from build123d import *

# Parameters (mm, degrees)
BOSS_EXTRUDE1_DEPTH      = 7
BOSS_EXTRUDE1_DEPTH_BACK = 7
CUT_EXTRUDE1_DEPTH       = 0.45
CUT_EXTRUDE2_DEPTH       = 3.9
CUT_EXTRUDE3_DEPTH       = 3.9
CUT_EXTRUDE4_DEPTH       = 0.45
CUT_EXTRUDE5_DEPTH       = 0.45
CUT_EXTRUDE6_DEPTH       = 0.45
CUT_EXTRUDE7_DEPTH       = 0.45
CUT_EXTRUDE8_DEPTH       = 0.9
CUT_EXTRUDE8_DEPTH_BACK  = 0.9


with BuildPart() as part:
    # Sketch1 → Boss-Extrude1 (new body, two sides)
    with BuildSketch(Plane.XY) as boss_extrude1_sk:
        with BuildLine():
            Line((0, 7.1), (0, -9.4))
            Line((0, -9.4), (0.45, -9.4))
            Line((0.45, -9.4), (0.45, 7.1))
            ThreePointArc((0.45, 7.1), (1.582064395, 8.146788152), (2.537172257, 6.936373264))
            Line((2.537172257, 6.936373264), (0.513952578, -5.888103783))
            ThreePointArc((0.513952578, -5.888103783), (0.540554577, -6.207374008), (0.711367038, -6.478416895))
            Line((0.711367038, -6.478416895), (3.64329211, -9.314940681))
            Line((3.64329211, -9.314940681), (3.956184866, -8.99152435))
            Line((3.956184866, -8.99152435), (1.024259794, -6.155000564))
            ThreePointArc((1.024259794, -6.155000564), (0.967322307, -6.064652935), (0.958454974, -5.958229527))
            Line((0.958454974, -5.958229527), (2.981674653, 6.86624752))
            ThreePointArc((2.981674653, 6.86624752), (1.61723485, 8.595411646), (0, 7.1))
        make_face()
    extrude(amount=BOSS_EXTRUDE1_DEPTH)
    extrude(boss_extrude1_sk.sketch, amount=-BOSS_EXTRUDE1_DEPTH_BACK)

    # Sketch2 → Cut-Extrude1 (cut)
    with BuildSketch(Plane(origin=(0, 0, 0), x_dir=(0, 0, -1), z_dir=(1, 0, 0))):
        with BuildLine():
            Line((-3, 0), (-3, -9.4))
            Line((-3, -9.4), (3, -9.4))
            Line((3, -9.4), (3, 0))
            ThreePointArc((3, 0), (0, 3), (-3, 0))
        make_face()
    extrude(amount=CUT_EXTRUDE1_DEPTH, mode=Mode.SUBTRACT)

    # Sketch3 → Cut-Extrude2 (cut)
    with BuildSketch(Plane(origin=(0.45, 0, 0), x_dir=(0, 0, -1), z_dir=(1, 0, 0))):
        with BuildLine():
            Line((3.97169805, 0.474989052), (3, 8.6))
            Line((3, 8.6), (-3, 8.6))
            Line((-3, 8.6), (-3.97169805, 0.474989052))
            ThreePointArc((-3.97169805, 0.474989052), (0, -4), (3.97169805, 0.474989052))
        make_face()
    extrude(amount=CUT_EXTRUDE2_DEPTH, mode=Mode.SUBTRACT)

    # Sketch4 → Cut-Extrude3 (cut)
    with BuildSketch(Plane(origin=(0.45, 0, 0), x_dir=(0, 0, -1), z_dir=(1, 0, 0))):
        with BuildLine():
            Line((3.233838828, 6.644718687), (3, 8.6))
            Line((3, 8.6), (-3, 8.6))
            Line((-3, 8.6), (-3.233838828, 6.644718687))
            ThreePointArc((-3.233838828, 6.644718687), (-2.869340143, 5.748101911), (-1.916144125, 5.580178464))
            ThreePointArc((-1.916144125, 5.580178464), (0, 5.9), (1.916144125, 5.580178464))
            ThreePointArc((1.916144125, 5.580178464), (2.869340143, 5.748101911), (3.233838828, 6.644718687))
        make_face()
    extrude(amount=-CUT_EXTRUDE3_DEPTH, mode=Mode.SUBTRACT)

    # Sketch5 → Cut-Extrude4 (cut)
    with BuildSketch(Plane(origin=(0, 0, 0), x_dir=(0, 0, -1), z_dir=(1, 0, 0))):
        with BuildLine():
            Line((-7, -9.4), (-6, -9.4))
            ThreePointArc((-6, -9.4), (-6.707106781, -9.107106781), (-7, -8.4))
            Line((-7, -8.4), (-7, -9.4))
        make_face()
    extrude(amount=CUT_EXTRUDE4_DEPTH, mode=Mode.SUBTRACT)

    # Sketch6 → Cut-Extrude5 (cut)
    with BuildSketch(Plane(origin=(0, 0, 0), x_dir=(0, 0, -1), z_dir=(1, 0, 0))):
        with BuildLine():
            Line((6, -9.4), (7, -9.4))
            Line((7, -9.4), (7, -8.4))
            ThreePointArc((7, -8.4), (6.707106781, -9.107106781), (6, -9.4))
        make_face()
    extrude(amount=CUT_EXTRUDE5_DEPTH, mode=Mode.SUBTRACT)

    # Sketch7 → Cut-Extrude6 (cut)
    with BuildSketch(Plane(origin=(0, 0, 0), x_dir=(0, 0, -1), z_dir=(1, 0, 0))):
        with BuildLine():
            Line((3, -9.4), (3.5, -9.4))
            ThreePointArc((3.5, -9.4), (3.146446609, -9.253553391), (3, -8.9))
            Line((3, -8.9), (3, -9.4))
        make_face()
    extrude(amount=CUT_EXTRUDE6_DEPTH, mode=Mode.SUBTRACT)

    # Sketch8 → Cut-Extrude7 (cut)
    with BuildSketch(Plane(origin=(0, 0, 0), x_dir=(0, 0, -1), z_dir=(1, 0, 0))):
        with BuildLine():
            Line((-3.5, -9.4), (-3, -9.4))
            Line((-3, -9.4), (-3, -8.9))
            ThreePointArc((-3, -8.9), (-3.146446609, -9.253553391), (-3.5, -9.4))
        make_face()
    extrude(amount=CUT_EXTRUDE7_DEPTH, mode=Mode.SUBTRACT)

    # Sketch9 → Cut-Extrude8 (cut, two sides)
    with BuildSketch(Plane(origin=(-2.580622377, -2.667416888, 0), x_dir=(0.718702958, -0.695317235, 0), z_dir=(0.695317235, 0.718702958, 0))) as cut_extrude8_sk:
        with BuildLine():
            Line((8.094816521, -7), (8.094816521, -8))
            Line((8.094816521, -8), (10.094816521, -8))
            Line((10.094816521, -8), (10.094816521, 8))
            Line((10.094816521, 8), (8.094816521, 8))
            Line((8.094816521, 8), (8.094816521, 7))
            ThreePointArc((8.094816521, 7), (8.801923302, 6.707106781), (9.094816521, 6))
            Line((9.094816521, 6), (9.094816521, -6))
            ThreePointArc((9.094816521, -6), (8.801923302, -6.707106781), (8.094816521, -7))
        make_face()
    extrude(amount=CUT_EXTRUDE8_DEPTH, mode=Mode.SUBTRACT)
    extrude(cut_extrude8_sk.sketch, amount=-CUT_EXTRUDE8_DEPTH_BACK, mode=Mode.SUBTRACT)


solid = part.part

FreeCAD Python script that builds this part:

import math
import FreeCAD as App
import Part
import Sketcher

V = App.Vector
Q = App.Units.Quantity

doc = App.newDocument("Part")
params = doc.addObject("Spreadsheet::Sheet", "Params")
for row, (alias, value) in enumerate([
    ("sketch1_radius", "1.5 mm"),
    ("sketch1_radius2", "1.05 mm"),
    ("sketch1_height", "16.5 mm"),
    ("sketch1_height2", "16.5 mm"),
    ("sketch1_length", "0.45 mm"),
    ("pad1_length", "7 mm"),
    ("pad1_length2", "7 mm"),
    ("sketch2_radius", "3 mm"),
    ("sketch2_width", "9.4 mm"),
    ("pocket1_length", "0.45 mm"),
    ("sketch3_radius", "4 mm"),
    ("sketch3_height", "6 mm"),
    ("pocket2_length", "3.9 mm"),
    ("sketch4_radius", "1 mm"),
    ("sketch4_radius2", "5.9 mm"),
    ("sketch4_height", "6 mm"),
    ("pocket3_length", "3.9 mm"),
    ("sketch5_radius", "1 mm"),
    ("pocket4_length", "0.45 mm"),
    ("sketch6_radius", "1 mm"),
    ("pocket5_length", "0.45 mm"),
    ("sketch7_radius", "0.5 mm"),
    ("pocket6_length", "0.45 mm"),
    ("sketch8_radius", "0.5 mm"),
    ("pocket7_length", "0.45 mm"),
    ("sketch9_radius", "1 mm"),
    ("sketch9_width", "2 mm"),
    ("sketch9_height", "1 mm"),
    ("sketch9_height2", "16 mm"),
], start=1):
    params.set(f"A{row}", alias)
    params.set(f"B{row}", "=" + value)
    params.setAlias(f"B{row}", alias)

body = doc.addObject("PartDesign::Body", "Body")

# Sketch on XY plane
sketch1 = body.newObject("Sketcher::SketchObject", "Sketch")
sketch1.AttachmentSupport = (doc.getObject("XY_Plane"), [""])
sketch1.MapMode = "FlatFace"
sketch1.addGeometry([
    Part.LineSegment(V(0, 7.1, 0), V(0, -9.4, 0)),  # 0
    Part.LineSegment(V(0, -9.4, 0), V(0.45, -9.4, 0)),  # 1
    Part.LineSegment(V(0.45, -9.4, 0), V(0.45, 7.1, 0)),  # 2
    Part.ArcOfCircle(Part.Circle(V(1.5, 7.1, 0), V(0, 0, 1), 1.05), math.radians(-8.965226), math.radians(180)),  # 3
    Part.LineSegment(V(2.537172, 6.936373, 0), V(0.513953, -5.888104, 0)),  # 4
    Part.ArcOfCircle(Part.Circle(V(1.180706, -5.993292, 0), V(0, 0, 1), 0.675), math.radians(171.034774), math.radians(225.947498)),  # 5
    Part.LineSegment(V(0.711367, -6.478417, 0), V(3.643292, -9.314941, 0)),  # 6
    Part.LineSegment(V(3.643292, -9.314941, 0), V(3.956185, -8.991524, 0)),  # 7
    Part.LineSegment(V(3.956185, -8.991524, 0), V(1.02426, -6.155001, 0)),  # 8
    Part.ArcOfCircle(Part.Circle(V(1.180706, -5.993292, 0), V(0, 0, 1), 0.225), math.radians(171.034774), math.radians(225.947498)),  # 9
    Part.LineSegment(V(0.958455, -5.95823, 0), V(2.981675, 6.866248, 0)),  # 10
    Part.ArcOfCircle(Part.Circle(V(1.5, 7.1, 0), V(0, 0, 1), 1.5), math.radians(-8.965226), math.radians(180)),  # 11
], False)
sketch1.addConstraint([
    Sketcher.Constraint("Coincident", 0, 2, 1, 1),
    Sketcher.Constraint("Coincident", 1, 2, 2, 1),
    Sketcher.Constraint("Coincident", 2, 2, 3, 2),
    Sketcher.Constraint("Coincident", 3, 1, 4, 1),
    Sketcher.Constraint("Coincident", 4, 2, 5, 1),
    Sketcher.Constraint("Coincident", 5, 2, 6, 1),
    Sketcher.Constraint("Coincident", 6, 2, 7, 1),
    Sketcher.Constraint("Coincident", 7, 2, 8, 1),
    Sketcher.Constraint("Coincident", 8, 2, 9, 2),
    Sketcher.Constraint("Coincident", 9, 1, 10, 1),
    Sketcher.Constraint("Coincident", 10, 2, 11, 1),
    Sketcher.Constraint("Coincident", 11, 2, 0, 1),
    Sketcher.Constraint("Vertical", 0),
    Sketcher.Constraint("Horizontal", 1),
    Sketcher.Constraint("Vertical", 2),
    Sketcher.Constraint("Coincident", 9, 3, 5, 3),
    Sketcher.Constraint("Coincident", 11, 3, 3, 3),
    Sketcher.Constraint("PointOnObject", 0, 2, -2),
    Sketcher.Constraint("Radius", 11, Q("1.5 mm")),
    Sketcher.Constraint("Radius", 3, Q("1.05 mm")),
    Sketcher.Constraint("DistanceY", 0, 2, 0, 1, Q("16.5 mm")),
    Sketcher.Constraint("DistanceY", 2, 1, 2, 2, Q("16.5 mm")),
    Sketcher.Constraint("Radius", 5, Q("0.675 mm")),
    Sketcher.Constraint("Radius", 9, Q("0.225 mm")),
    Sketcher.Constraint("DistanceY", -1, 1, 3, 3, Q("7.1 mm")),
    Sketcher.Constraint("DistanceY", 0, 2, -1, 1, Q("9.4 mm")),
    Sketcher.Constraint("Distance", 7, Q("0.45 mm")),
    Sketcher.Constraint("DistanceY", 8, 2, -1, 1, Q("6.155001 mm")),
    Sketcher.Constraint("Distance", 4, Q("12.98309 mm")),
    Sketcher.Constraint("Distance", 10, Q("12.98309 mm")),
    Sketcher.Constraint("DistanceY", 6, 2, -1, 1, Q("9.314941 mm")),
    Sketcher.Constraint("DistanceX", -1, 1, 8, 2, Q("1.02426 mm")),
    Sketcher.Constraint("DistanceY", 9, 1, -1, 1, Q("5.95823 mm")),
    Sketcher.Constraint("DistanceY", 5, 3, 4, 2, Q("0.105189 mm")),
    Sketcher.Constraint("DistanceX", 4, 2, 3, 1, Q("2.02322 mm")),
    Sketcher.Constraint("DistanceX", 5, 2, 5, 3, Q("0.469339 mm")),
    Sketcher.Constraint("DistanceX", 5, 3, 7, 2, Q("2.775479 mm")),
    Sketcher.Constraint("DistanceY", 7, 2, 5, 3, Q("2.998232 mm")),
])
sketch1.setExpression("Constraints[18]", "Params.sketch1_radius")
sketch1.setExpression("Constraints[19]", "Params.sketch1_radius2")
sketch1.setExpression("Constraints[20]", "Params.sketch1_height")
sketch1.setExpression("Constraints[21]", "Params.sketch1_height2")
sketch1.setExpression("Constraints[26]", "Params.sketch1_length")
pad1 = body.newObject("PartDesign::Pad", "Pad")
pad1.Profile = sketch1
pad1.Type = "TwoLengths"
pad1.setExpression("Length", "Params.pad1_length")
pad1.setExpression("Length2", "Params.pad1_length2")

# Sketch on YZ plane
sketch2 = body.newObject("Sketcher::SketchObject", "Sketch001")
sketch2.AttachmentSupport = (doc.getObject("YZ_Plane"), [""])
sketch2.MapMode = "FlatFace"
sketch2.addGeometry([
    Part.LineSegment(V(0, 3, 0), V(-9.4, 3, 0)),
    Part.LineSegment(V(-9.4, 3, 0), V(-9.4, -3, 0)),
    Part.LineSegment(V(-9.4, -3, 0), V(0, -3, 0)),
    Part.ArcOfCircle(Part.Circle(V(0, 0, 0), V(0, 0, 1), 3), math.radians(-90), math.radians(90)),
], False)
sketch2.addConstraint([
    Sketcher.Constraint("Coincident", 0, 2, 1, 1),
    Sketcher.Constraint("Coincident", 1, 2, 2, 1),
    Sketcher.Constraint("Tangent", 2, 2, 3, 1),
    Sketcher.Constraint("Tangent", 3, 2, 0, 1),
    Sketcher.Constraint("Horizontal", 0),
    Sketcher.Constraint("Vertical", 1),
    Sketcher.Constraint("Horizontal", 2),
    Sketcher.Constraint("Coincident", 3, 3, -1, 1),
    Sketcher.Constraint("Radius", 3, Q("3 mm")),
    Sketcher.Constraint("DistanceX", 0, 2, 0, 1, Q("9.4 mm")),
])
sketch2.setExpression("Constraints[8]", "Params.sketch2_radius")
sketch2.setExpression("Constraints[9]", "Params.sketch2_width")
pocket1 = body.newObject("PartDesign::Pocket", "Pocket")
pocket1.Profile = sketch2
pocket1.setExpression("Length", "Params.pocket1_length")
pocket1.Reversed = True

# Sketch on YZ plane
sketch3 = body.newObject("Sketcher::SketchObject", "Sketch002")
sketch3.AttachmentSupport = (doc.getObject("YZ_Plane"), [""])
sketch3.MapMode = "FlatFace"
sketch3.AttachmentOffset = App.Placement(V(0, 0, 0.45), App.Rotation())
sketch3.addGeometry([
    Part.LineSegment(V(0.5, -4, 0), V(8.6, -3, 0)),
    Part.LineSegment(V(8.6, -3, 0), V(8.6, 3, 0)),
    Part.LineSegment(V(8.6, 3, 0), V(0.5, 4, 0)),
    Part.ArcOfCircle(Part.Circle(V(0, 0, 0), V(0, 0, 1), 4), math.radians(83), math.radians(277)),
], False)
sketch3.addConstraint([
    Sketcher.Constraint("Coincident", 0, 2, 1, 1),
    Sketcher.Constraint("Coincident", 1, 2, 2, 1),
    Sketcher.Constraint("Tangent", 2, 2, 3, 1),
    Sketcher.Constraint("Tangent", 3, 2, 0, 1),
    Sketcher.Constraint("Vertical", 1),
    Sketcher.Constraint("Coincident", 3, 3, -1, 1),
    Sketcher.Constraint("Vertical", 2, 2, 3, 2),
    Sketcher.Constraint("Radius", 3, Q("4 mm")),
    Sketcher.Constraint("DistanceY", 1, 1, 1, 2, Q("6 mm")),
    Sketcher.Constraint("DistanceX", -1, 1, 0, 2, Q("8.6 mm")),
])
sketch3.setExpression("Constraints[7]", "Params.sketch3_radius")
sketch3.setExpression("Constraints[8]", "Params.sketch3_height")
pocket2 = body.newObject("PartDesign::Pocket", "Pocket001")
pocket2.Profile = sketch3
pocket2.setExpression("Length", "Params.pocket2_length")
pocket2.Reversed = True

# Sketch on YZ plane
sketch4 = body.newObject("Sketcher::SketchObject", "Sketch003")
sketch4.AttachmentSupport = (doc.getObject("YZ_Plane"), [""])
sketch4.MapMode = "FlatFace"
sketch4.AttachmentOffset = App.Placement(V(0, 0, 0.45), App.Rotation())
sketch4.addGeometry([
    Part.LineSegment(V(6.6, -3.2, 0), V(8.6, -3, 0)),  # 0
    Part.LineSegment(V(8.6, -3, 0), V(8.6, 3, 0)),  # 1
    Part.LineSegment(V(8.6, 3, 0), V(6.6, 3.2, 0)),  # 2
    Part.ArcOfCircle(Part.Circle(V(6.5, 2.2, 0), V(0, 0, 1), 1), math.radians(83), math.radians(199)),  # 3
    Part.ArcOfCircle(Part.Circle(V(0, 0, 0), V(0, 0, 1), 5.9), math.radians(-19), math.radians(19)),  # 4
    Part.ArcOfCircle(Part.Circle(V(6.5, -2.2, 0), V(0, 0, 1), 1), math.radians(161), math.radians(277)),  # 5
], False)
sketch4.addConstraint([
    Sketcher.Constraint("Coincident", 0, 2, 1, 1),
    Sketcher.Constraint("Coincident", 1, 2, 2, 1),
    Sketcher.Constraint("Tangent", 2, 2, 3, 1),
    Sketcher.Constraint("Tangent", 3, 2, 4, 2),
    Sketcher.Constraint("Tangent", 4, 1, 5, 1),
    Sketcher.Constraint("Tangent", 5, 2, 0, 1),
    Sketcher.Constraint("Vertical", 1),
    Sketcher.Constraint("Coincident", 4, 3, -1, 1),
    Sketcher.Constraint("Equal", 3, 5),
    Sketcher.Constraint("Symmetric", 2, 2, 5, 2, -1),
    Sketcher.Constraint("Radius", 3, Q("1 mm")),
    Sketcher.Constraint("Radius", 4, Q("5.9 mm")),
    Sketcher.Constraint("DistanceY", 1, 1, 1, 2, Q("6 mm")),
    Sketcher.Constraint("DistanceX", -1, 1, 0, 2, Q("8.6 mm")),
    Sketcher.Constraint("DistanceX", -1, 1, 3, 3, Q("6.525971 mm")),
])
sketch4.setExpression("Constraints[10]", "Params.sketch4_radius")
sketch4.setExpression("Constraints[11]", "Params.sketch4_radius2")
sketch4.setExpression("Constraints[12]", "Params.sketch4_height")
pocket3 = body.newObject("PartDesign::Pocket", "Pocket002")
pocket3.Profile = sketch4
pocket3.setExpression("Length", "Params.pocket3_length")

# Sketch on YZ plane
sketch5 = body.newObject("Sketcher::SketchObject", "Sketch004")
sketch5.AttachmentSupport = (doc.getObject("YZ_Plane"), [""])
sketch5.MapMode = "FlatFace"
sketch5.addGeometry([
    Part.LineSegment(V(-9.4, 7, 0), V(-9.4, 6, 0)),
    Part.ArcOfCircle(Part.Circle(V(-8.4, 6, 0), V(0, 0, 1), 1), math.radians(90), math.radians(180)),
    Part.LineSegment(V(-8.4, 7, 0), V(-9.4, 7, 0)),
], False)
sketch5.addConstraint([
    Sketcher.Constraint("Tangent", 0, 2, 1, 2),
    Sketcher.Constraint("Tangent", 1, 1, 2, 1),
    Sketcher.Constraint("Coincident", 2, 2, 0, 1),
    Sketcher.Constraint("Vertical", 0),
    Sketcher.Constraint("Horizontal", 2),
    Sketcher.Constraint("Radius", 1, Q("1 mm")),
    Sketcher.Constraint("DistanceY", -1, 1, 1, 3, Q("6 mm")),
    Sketcher.Constraint("DistanceX", 1, 3, -1, 1, Q("8.4 mm")),
])
sketch5.setExpression("Constraints[5]", "Params.sketch5_radius")
pocket4 = body.newObject("PartDesign::Pocket", "Pocket003")
pocket4.Profile = sketch5
pocket4.setExpression("Length", "Params.pocket4_length")
pocket4.Reversed = True

# Sketch on YZ plane
sketch6 = body.newObject("Sketcher::SketchObject", "Sketch005")
sketch6.AttachmentSupport = (doc.getObject("YZ_Plane"), [""])
sketch6.MapMode = "FlatFace"
sketch6.addGeometry([
    Part.LineSegment(V(-9.4, -6, 0), V(-9.4, -7, 0)),
    Part.LineSegment(V(-9.4, -7, 0), V(-8.4, -7, 0)),
    Part.ArcOfCircle(Part.Circle(V(-8.4, -6, 0), V(0, 0, 1), 1), math.radians(-180), math.radians(-90)),
], False)
sketch6.addConstraint([
    Sketcher.Constraint("Coincident", 0, 2, 1, 1),
    Sketcher.Constraint("Tangent", 1, 2, 2, 2),
    Sketcher.Constraint("Tangent", 2, 1, 0, 1),
    Sketcher.Constraint("Vertical", 0),
    Sketcher.Constraint("Horizontal", 1),
    Sketcher.Constraint("Radius", 2, Q("1 mm")),
    Sketcher.Constraint("DistanceY", 2, 3, -1, 1, Q("6 mm")),
    Sketcher.Constraint("DistanceX", 2, 3, -1, 1, Q("8.4 mm")),
])
sketch6.setExpression("Constraints[5]", "Params.sketch6_radius")
pocket5 = body.newObject("PartDesign::Pocket", "Pocket004")
pocket5.Profile = sketch6
pocket5.setExpression("Length", "Params.pocket5_length")
pocket5.Reversed = True

# Sketch on YZ plane
sketch7 = body.newObject("Sketcher::SketchObject", "Sketch006")
sketch7.AttachmentSupport = (doc.getObject("YZ_Plane"), [""])
sketch7.MapMode = "FlatFace"
sketch7.addGeometry([
    Part.LineSegment(V(-9.4, -3, 0), V(-9.4, -3.5, 0)),
    Part.ArcOfCircle(Part.Circle(V(-8.9, -3.5, 0), V(0, 0, 1), 0.5), math.radians(90), math.radians(180)),
    Part.LineSegment(V(-8.9, -3, 0), V(-9.4, -3, 0)),
], False)
sketch7.addConstraint([
    Sketcher.Constraint("Tangent", 0, 2, 1, 2),
    Sketcher.Constraint("Tangent", 1, 1, 2, 1),
    Sketcher.Constraint("Coincident", 2, 2, 0, 1),
    Sketcher.Constraint("Vertical", 0),
    Sketcher.Constraint("Horizontal", 2),
    Sketcher.Constraint("Radius", 1, Q("0.5 mm")),
    Sketcher.Constraint("DistanceY", 1, 1, -1, 1, Q("3 mm")),
    Sketcher.Constraint("DistanceX", 1, 3, -1, 1, Q("8.9 mm")),
])
sketch7.setExpression("Constraints[5]", "Params.sketch7_radius")
pocket6 = body.newObject("PartDesign::Pocket", "Pocket005")
pocket6.Profile = sketch7
pocket6.setExpression("Length", "Params.pocket6_length")
pocket6.Reversed = True

# Sketch on YZ plane
sketch8 = body.newObject("Sketcher::SketchObject", "Sketch007")
sketch8.AttachmentSupport = (doc.getObject("YZ_Plane"), [""])
sketch8.MapMode = "FlatFace"
sketch8.addGeometry([
    Part.LineSegment(V(-9.4, 3.5, 0), V(-9.4, 3, 0)),
    Part.LineSegment(V(-9.4, 3, 0), V(-8.9, 3, 0)),
    Part.ArcOfCircle(Part.Circle(V(-8.9, 3.5, 0), V(0, 0, 1), 0.5), math.radians(180), math.radians(270)),
], False)
sketch8.addConstraint([
    Sketcher.Constraint("Coincident", 0, 2, 1, 1),
    Sketcher.Constraint("Tangent", 1, 2, 2, 2),
    Sketcher.Constraint("Tangent", 2, 1, 0, 1),
    Sketcher.Constraint("Vertical", 0),
    Sketcher.Constraint("Horizontal", 1),
    Sketcher.Constraint("Radius", 2, Q("0.5 mm")),
    Sketcher.Constraint("DistanceY", -1, 1, 0, 2, Q("3 mm")),
    Sketcher.Constraint("DistanceX", 2, 3, -1, 1, Q("8.9 mm")),
])
sketch8.setExpression("Constraints[5]", "Params.sketch8_radius")
pocket7 = body.newObject("PartDesign::Pocket", "Pocket006")
pocket7.Profile = sketch8
pocket7.setExpression("Length", "Params.pocket7_length")
pocket7.Reversed = True

# Sketch on an angled plane
sketch9 = body.newObject("Sketcher::SketchObject", "Sketch008")
sketch9.Placement = App.Placement(V(-2.580622, -2.667417, 0), App.Rotation(V(0.718702958, -0.695317235, 0), V(0, 0, -0.999999999), V(0.695317235, 0.718702958, 0), "ZXY"))
sketch9.addGeometry([
    Part.LineSegment(V(8.1, -7, 0), V(8.1, -8, 0)),  # 0
    Part.LineSegment(V(8.1, -8, 0), V(10.1, -8, 0)),  # 1
    Part.LineSegment(V(10.1, -8, 0), V(10.1, 8, 0)),  # 2
    Part.LineSegment(V(10.1, 8, 0), V(8.1, 8, 0)),  # 3
    Part.LineSegment(V(8.1, 8, 0), V(8.1, 7, 0)),  # 4
    Part.ArcOfCircle(Part.Circle(V(8.1, 6, 0), V(0, 0, 1), 1), math.radians(0), math.radians(90)),  # 5
    Part.LineSegment(V(9.1, 6, 0), V(9.1, -6, 0)),  # 6
    Part.ArcOfCircle(Part.Circle(V(8.1, -6, 0), V(0, 0, 1), 1), math.radians(-90), math.radians(0)),  # 7
], False)
sketch9.addConstraint([
    Sketcher.Constraint("Coincident", 0, 2, 1, 1),
    Sketcher.Constraint("Coincident", 1, 2, 2, 1),
    Sketcher.Constraint("Coincident", 2, 2, 3, 1),
    Sketcher.Constraint("Coincident", 3, 2, 4, 1),
    Sketcher.Constraint("Coincident", 4, 2, 5, 2),
    Sketcher.Constraint("Tangent", 5, 1, 6, 1),
    Sketcher.Constraint("Tangent", 6, 2, 7, 2),
    Sketcher.Constraint("Coincident", 7, 1, 0, 1),
    Sketcher.Constraint("Vertical", 0),
    Sketcher.Constraint("Horizontal", 1),
    Sketcher.Constraint("Vertical", 2),
    Sketcher.Constraint("Horizontal", 3),
    Sketcher.Constraint("Vertical", 4),
    Sketcher.Constraint("Vertical", 6),
    Sketcher.Constraint("Equal", 5, 7),
    Sketcher.Constraint("Symmetric", 0, 2, 3, 2, -1),
    Sketcher.Constraint("Vertical", 7, 3, 0, 2),
    Sketcher.Constraint("Equal", 0, 4),
    Sketcher.Constraint("Radius", 5, Q("1 mm")),
    Sketcher.Constraint("DistanceX", 1, 1, 1, 2, Q("2 mm")),
    Sketcher.Constraint("DistanceY", 0, 2, 0, 1, Q("1 mm")),
    Sketcher.Constraint("DistanceY", 2, 1, 2, 2, Q("16 mm")),
    Sketcher.Constraint("DistanceX", -1, 1, 5, 3, Q("8.094817 mm")),
])
sketch9.setExpression("Constraints[18]", "Params.sketch9_radius")
sketch9.setExpression("Constraints[19]", "Params.sketch9_width")
sketch9.setExpression("Constraints[20]", "Params.sketch9_height")
sketch9.setExpression("Constraints[21]", "Params.sketch9_height2")
pocket8 = body.newObject("PartDesign::Pocket", "Pocket007")
pocket8.Profile = sketch9
pocket8.Type = "ThroughAll"
pocket8.Midplane = True

doc.recompute()
